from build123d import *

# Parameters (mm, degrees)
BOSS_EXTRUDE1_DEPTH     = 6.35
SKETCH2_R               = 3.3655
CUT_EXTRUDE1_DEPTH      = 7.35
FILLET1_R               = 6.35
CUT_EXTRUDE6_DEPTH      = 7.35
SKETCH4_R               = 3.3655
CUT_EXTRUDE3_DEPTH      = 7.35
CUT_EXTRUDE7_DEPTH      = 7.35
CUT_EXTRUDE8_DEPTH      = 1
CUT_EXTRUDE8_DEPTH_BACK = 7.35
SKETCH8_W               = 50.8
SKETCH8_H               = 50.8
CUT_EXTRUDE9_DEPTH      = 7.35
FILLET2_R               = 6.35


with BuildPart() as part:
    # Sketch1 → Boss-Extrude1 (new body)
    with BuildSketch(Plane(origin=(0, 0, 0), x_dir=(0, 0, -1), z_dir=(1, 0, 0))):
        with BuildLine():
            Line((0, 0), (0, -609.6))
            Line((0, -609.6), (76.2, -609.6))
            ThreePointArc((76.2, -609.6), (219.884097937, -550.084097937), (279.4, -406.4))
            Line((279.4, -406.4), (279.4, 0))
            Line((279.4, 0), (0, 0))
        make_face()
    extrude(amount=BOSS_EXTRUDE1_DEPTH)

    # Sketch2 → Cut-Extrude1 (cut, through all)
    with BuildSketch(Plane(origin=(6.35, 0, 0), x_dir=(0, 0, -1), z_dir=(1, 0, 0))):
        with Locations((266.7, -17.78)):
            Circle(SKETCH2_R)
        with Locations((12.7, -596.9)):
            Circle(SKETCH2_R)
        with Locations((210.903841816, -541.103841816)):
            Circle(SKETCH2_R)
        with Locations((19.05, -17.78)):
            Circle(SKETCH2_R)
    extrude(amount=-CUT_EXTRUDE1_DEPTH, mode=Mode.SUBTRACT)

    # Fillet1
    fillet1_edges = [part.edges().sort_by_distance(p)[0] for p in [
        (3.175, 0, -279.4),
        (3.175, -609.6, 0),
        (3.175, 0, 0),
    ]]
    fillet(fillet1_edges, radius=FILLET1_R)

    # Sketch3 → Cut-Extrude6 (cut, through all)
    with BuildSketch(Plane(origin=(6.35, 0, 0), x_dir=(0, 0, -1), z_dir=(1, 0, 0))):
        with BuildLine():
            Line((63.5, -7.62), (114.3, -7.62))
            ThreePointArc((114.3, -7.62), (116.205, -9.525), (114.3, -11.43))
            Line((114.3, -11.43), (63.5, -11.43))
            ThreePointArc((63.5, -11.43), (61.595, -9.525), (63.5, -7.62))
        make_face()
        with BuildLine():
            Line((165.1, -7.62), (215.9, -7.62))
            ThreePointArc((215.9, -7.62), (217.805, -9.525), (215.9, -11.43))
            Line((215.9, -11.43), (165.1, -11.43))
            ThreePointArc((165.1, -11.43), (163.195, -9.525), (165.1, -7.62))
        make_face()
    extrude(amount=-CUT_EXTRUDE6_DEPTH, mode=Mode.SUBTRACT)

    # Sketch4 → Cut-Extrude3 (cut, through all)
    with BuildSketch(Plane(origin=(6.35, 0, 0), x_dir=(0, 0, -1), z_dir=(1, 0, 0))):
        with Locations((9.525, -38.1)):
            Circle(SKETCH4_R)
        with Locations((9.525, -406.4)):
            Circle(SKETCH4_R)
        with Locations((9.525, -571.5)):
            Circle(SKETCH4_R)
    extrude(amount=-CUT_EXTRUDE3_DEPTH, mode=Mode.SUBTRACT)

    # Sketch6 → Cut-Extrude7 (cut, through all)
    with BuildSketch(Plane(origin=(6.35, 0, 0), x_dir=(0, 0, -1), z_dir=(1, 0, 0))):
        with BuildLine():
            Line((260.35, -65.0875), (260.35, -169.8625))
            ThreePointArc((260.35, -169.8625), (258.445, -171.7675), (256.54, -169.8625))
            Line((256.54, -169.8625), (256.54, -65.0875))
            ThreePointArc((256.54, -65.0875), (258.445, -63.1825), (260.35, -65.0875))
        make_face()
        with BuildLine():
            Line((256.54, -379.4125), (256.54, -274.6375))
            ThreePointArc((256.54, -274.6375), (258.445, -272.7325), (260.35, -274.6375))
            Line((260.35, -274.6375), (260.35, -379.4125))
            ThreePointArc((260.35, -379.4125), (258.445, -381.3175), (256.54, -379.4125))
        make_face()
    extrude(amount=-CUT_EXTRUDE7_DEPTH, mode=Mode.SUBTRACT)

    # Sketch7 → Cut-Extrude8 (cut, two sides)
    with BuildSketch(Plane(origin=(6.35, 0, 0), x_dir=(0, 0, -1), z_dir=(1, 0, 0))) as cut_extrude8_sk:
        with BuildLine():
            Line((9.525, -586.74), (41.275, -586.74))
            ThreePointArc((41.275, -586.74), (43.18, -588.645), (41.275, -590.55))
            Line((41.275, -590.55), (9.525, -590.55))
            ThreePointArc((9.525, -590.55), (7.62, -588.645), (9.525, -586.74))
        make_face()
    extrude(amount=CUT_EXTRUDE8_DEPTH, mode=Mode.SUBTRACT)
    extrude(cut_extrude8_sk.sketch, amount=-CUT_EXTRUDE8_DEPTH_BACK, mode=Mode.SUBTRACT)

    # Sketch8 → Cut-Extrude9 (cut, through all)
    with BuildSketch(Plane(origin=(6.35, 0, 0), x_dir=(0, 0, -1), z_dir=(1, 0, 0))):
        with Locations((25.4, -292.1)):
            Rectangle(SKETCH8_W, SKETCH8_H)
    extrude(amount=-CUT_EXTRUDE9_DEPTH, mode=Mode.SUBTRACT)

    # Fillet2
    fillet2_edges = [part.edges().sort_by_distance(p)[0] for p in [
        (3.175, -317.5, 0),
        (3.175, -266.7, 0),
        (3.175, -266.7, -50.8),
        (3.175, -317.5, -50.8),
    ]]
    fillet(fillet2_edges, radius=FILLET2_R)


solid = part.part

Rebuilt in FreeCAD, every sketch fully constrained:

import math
import FreeCAD as App
import Part
import Sketcher
from FreeCAD import Vector
Q = App.Units.Quantity


def edges_at(feature, points):
    """Names of the edges that pass closest to the given points."""
    edges = feature.Shape.Edges
    near = lambda p: min(range(len(edges)), key=lambda i: edges[i].distToShape(Part.Vertex(*p))[0])
    return sorted({f"Edge{near(p) + 1}" for p in points})


def add_polygon(sketch, points):
    """Adds a closed chain of lines whose ends are joined by coincident constraints."""
    first, n = sketch.GeometryCount, len(points)
    for a, b in zip(points, points[1:] + points[:1]):
        sketch.addGeometry(Part.LineSegment(App.Vector(*a, 0), App.Vector(*b, 0)), False)
    for i in range(n):
        sketch.addConstraint(Sketcher.Constraint("Coincident", first + i, 2, first + (i + 1) % n, 1))

doc = App.newDocument("Part")
params = doc.addObject("Spreadsheet::Sheet", "Params")
for row, (alias, value) in enumerate([
    ("sketch1_radius", "8 in"),
    ("sketch1_width", "24 in"),
    ("sketch1_height", "3 in"),
    ("pad1_length", "0.25 in"),
    ("sketch2_diameter", "0.265 in"),
    ("fillet_radius", "0.25 in"),
    ("sketch3_height", "2 in"),
    ("sketch3_radius", "0.075 in"),
    ("sketch4_diameter", "0.265 in"),
    ("sketch5_radius", "0.075 in"),
    ("sketch5_width", "4.125 in"),
    ("sketch6_radius", "0.075 in"),
    ("sketch6_height", "1.25 in"),
    ("sketch7_width", "2 in"),
    ("fillet2_radius", "0.25 in"),
], start=1):
    params.set(f"A{row}", alias)
    params.set(f"B{row}", "=" + value)
    params.setAlias(f"B{row}", alias)

body = doc.addObject("PartDesign::Body", "Body")

# Sketch on YZ plane
sketch1 = body.newObject("Sketcher::SketchObject", "Sketch")
sketch1.AttachmentSupport = (doc.getObject("YZ_Plane"), [""])
sketch1.MapMode = "FlatFace"
sketch1.addGeometry([
    Part.LineSegment(Vector(0, 0, 0), Vector(-610, 0, 0)),  # 0
    Part.LineSegment(Vector(-610, 0, 0), Vector(-610, -76, 0)),  # 1
    Part.ArcOfCircle(Part.Circle(Vector(-406, -76, 0), Vector(0, 0, 1), 203), math.radians(180), math.radians(270)),  # 2
    Part.LineSegment(Vector(-406, -279, 0), Vector(0, -279, 0)),  # 3
    Part.LineSegment(Vector(0, -279, 0), Vector(0, 0, 0)),  # 4
], False)
sketch1.addConstraint([
    Sketcher.Constraint("Coincident", 0, 2, 1, 1),
    Sketcher.Constraint("Tangent", 1, 2, 2, 1),
    Sketcher.Constraint("Tangent", 2, 2, 3, 1),
    Sketcher.Constraint("Coincident", 3, 2, 4, 1),
    Sketcher.Constraint("Coincident", 4, 2, 0, 1),
    Sketcher.Constraint("Horizontal", 0),
    Sketcher.Constraint("Vertical", 1),
    Sketcher.Constraint("Horizontal", 3),
    Sketcher.Constraint("Vertical", 4),
    Sketcher.Constraint("Coincident", 4, 2, -1, 1),
    Sketcher.Constraint("Radius", 2, Q("8 in")),
    Sketcher.Constraint("DistanceX", 0, 2, 0, 1, Q("24 in")),
    Sketcher.Constraint("DistanceY", 1, 2, 1, 1, Q("3 in")),
])
sketch1.setExpression("Constraints[10]", "Params.sketch1_radius")
sketch1.setExpression("Constraints[11]", "Params.sketch1_width")
sketch1.setExpression("Constraints[12]", "Params.sketch1_height")
pad1 = body.newObject("PartDesign::Pad", "Pad")
pad1.Profile = sketch1
pad1.setExpression("Length", "Params.pad1_length")

# Sketch on YZ plane
sketch2 = body.newObject("Sketcher::SketchObject", "Sketch001")
sketch2.AttachmentSupport = (doc.getObject("YZ_Plane"), [""])
sketch2.MapMode = "FlatFace"
sketch2.AttachmentOffset = App.Placement(Vector(0, 0, 0.25 * 25.4), App.Rotation())
sketch2.addGeometry([
    Part.Circle(Vector(-17.8, -266.7, 0), Vector(0, 0, 1), 3.4),
    Part.Circle(Vector(-596.9, -12.7, 0), Vector(0, 0, 1), 3.4),
    Part.Circle(Vector(-541.1, -210.9, 0), Vector(0, 0, 1), 3.4),
    Part.Circle(Vector(-17.8, -19.1, 0), Vector(0, 0, 1), 3.4),
], False)
sketch2.addConstraint([
    Sketcher.Constraint("Equal", 0, 1),
    Sketcher.Constraint("Equal", 1, 2),
    Sketcher.Constraint("Equal", 2, 3),
    Sketcher.Constraint("Vertical", 0, 3, 3, 3),
    Sketcher.Constraint("Diameter", 0, Q("0.265 in")),
    Sketcher.Constraint("DistanceY", 0, 3, 1, 3, Q("10 in")),
    Sketcher.Constraint("DistanceX", 0, 3, -1, 1, Q("0.7 in")),
    Sketcher.Constraint("DistanceY", 0, 3, -1, 1, Q("10.5 in")),
    Sketcher.Constraint("DistanceX", 1, 3, -1, 1, Q("23.5 in")),
    Sketcher.Constraint("DistanceY", 3, 3, -1, 1, Q("0.75 in")),
    Sketcher.Constraint("DistanceX", 2, 3, -1, 1, Q("541.103842 mm")),
    Sketcher.Constraint("DistanceY", 2, 3, -1, 1, Q("210.903842 mm")),
])
sketch2.setExpression("Constraints[4]", "Params.sketch2_diameter")
pocket1 = body.newObject("PartDesign::Pocket", "Pocket")
pocket1.Profile = sketch2
pocket1.Type = "ThroughAll"
doc.recompute()

fillet = body.newObject("PartDesign::Fillet", "Fillet")
fillet.Base = (pocket1, edges_at(pocket1, [(3.175, 0, -279.4), (3.175, -609.6, 0), (3.175, 0, 0)]))
fillet.setExpression("Radius", "Params.fillet_radius")

# Sketch on YZ plane
sketch3 = body.newObject("Sketcher::SketchObject", "Sketch002")
sketch3.AttachmentSupport = (doc.getObject("YZ_Plane"), [""])
sketch3.MapMode = "FlatFace"
sketch3.AttachmentOffset = App.Placement(Vector(0, 0, 0.25 * 25.4), App.Rotation())
sketch3.addGeometry([
    Part.LineSegment(Vector(-7.6, -114.3, 0), Vector(-7.6, -63.5, 0)),  # 0
    Part.ArcOfCircle(Part.Circle(Vector(-9.5, -63.5, 0), Vector(0, 0, 1), 1.9), math.radians(0), math.radians(180)),  # 1
    Part.LineSegment(Vector(-11.4, -63.5, 0), Vector(-11.4, -114.3, 0)),  # 2
    Part.ArcOfCircle(Part.Circle(Vector(-9.5, -114.3, 0), Vector(0, 0, 1), 1.9), math.radians(180), math.radians(360)),  # 3
    Part.LineSegment(Vector(-7.6, -215.9, 0), Vector(-7.6, -165.1, 0)),  # 4
    Part.ArcOfCircle(Part.Circle(Vector(-9.5, -165.1, 0), Vector(0, 0, 1), 1.9), math.radians(0), math.radians(180)),  # 5
    Part.LineSegment(Vector(-11.4, -165.1, 0), Vector(-11.4, -215.9, 0)),  # 6
    Part.ArcOfCircle(Part.Circle(Vector(-9.5, -215.9, 0), Vector(0, 0, 1), 1.9), math.radians(180), math.radians(360)),  # 7
], False)
sketch3.addConstraint([
    Sketcher.Constraint("Tangent", 0, 2, 1, 1),
    Sketcher.Constraint("Tangent", 1, 2, 2, 1),
    Sketcher.Constraint("Tangent", 2, 2, 3, 1),
    Sketcher.Constraint("Tangent", 3, 2, 0, 1),
    Sketcher.Constraint("Tangent", 4, 2, 5, 1),
    Sketcher.Constraint("Tangent", 5, 2, 6, 1),
    Sketcher.Constraint("Tangent", 6, 2, 7, 1),
    Sketcher.Constraint("Tangent", 7, 2, 4, 1),
    Sketcher.Constraint("Vertical", 0),
    Sketcher.Constraint("Vertical", 2),
    Sketcher.Constraint("Vertical", 4),
    Sketcher.Constraint("Vertical", 6),
    Sketcher.Constraint("Equal", 3, 5),
    Sketcher.Constraint("Vertical", 3, 3, 5, 3),
    Sketcher.Constraint("Equal", 2, 4),
    Sketcher.Constraint("DistanceY", 0, 1, 0, 2, Q("2 in")),
    Sketcher.Constraint("Radius", 1, Q("0.075 in")),
    Sketcher.Constraint("DistanceY", 5, 3, 3, 3, Q("2 in")),
    Sketcher.Constraint("DistanceY", 1, 3, -1, 1, Q("2.5 in")),
    Sketcher.Constraint("DistanceX", 0, 2, -1, 1, Q("0.3 in")),
])
sketch3.setExpression("Constraints[15]", "Params.sketch3_height")
sketch3.setExpression("Constraints[16]", "Params.sketch3_radius")
pocket2 = body.newObject("PartDesign::Pocket", "Pocket001")
pocket2.Profile = sketch3
pocket2.Type = "ThroughAll"

# Sketch on YZ plane
sketch4 = body.newObject("Sketcher::SketchObject", "Sketch003")
sketch4.AttachmentSupport = (doc.getObject("YZ_Plane"), [""])
sketch4.MapMode = "FlatFace"
sketch4.AttachmentOffset = App.Placement(Vector(0, 0, 0.25 * 25.4), App.Rotation())
sketch4.addGeometry([
    Part.Circle(Vector(-38.1, -9.5, 0), Vector(0, 0, 1), 3.4),
    Part.Circle(Vector(-406.4, -9.5, 0), Vector(0, 0, 1), 3.4),
    Part.Circle(Vector(-571.5, -9.5, 0), Vector(0, 0, 1), 3.4),
], False)
sketch4.addConstraint([
    Sketcher.Constraint("Equal", 0, 1),
    Sketcher.Constraint("Equal", 1, 2),
    Sketcher.Constraint("Horizontal", 0, 3, 1, 3),
    Sketcher.Constraint("Horizontal", 1, 3, 2, 3),
    Sketcher.Constraint("Diameter", 0, Q("0.265 in")),
    Sketcher.Constraint("DistanceX", 1, 3, -1, 1, Q("16 in")),
    Sketcher.Constraint("DistanceX", 2, 3, 0, 3, Q("21 in")),
    Sketcher.Constraint("DistanceX", 0, 3, -1, 1, Q("1.5 in")),
    Sketcher.Constraint("DistanceY", 0, 3, -1, 1, Q("0.375 in")),
])
sketch4.setExpression("Constraints[4]", "Params.sketch4_diameter")
pocket3 = body.newObject("PartDesign::Pocket", "Pocket002")
pocket3.Profile = sketch4
pocket3.Type = "ThroughAll"

# Sketch on YZ plane
sketch5 = body.newObject("Sketcher::SketchObject", "Sketch004")
sketch5.AttachmentSupport = (doc.getObject("YZ_Plane"), [""])
sketch5.MapMode = "FlatFace"
sketch5.AttachmentOffset = App.Placement(Vector(0, 0, 0.25 * 25.4), App.Rotation())
sketch5.addGeometry([
    Part.LineSegment(Vector(-169.9, -260.4, 0), Vector(-65.1, -260.4, 0)),  # 0
    Part.ArcOfCircle(Part.Circle(Vector(-65.1, -258.4, 0), Vector(0, 0, 1), 1.9), math.radians(-90), math.radians(90)),  # 1
    Part.LineSegment(Vector(-65.1, -256.5, 0), Vector(-169.9, -256.5, 0)),  # 2
    Part.ArcOfCircle(Part.Circle(Vector(-169.9, -258.4, 0), Vector(0, 0, 1), 1.9), math.radians(90), math.radians(270)),  # 3
    Part.LineSegment(Vector(-274.6, -256.5, 0), Vector(-379.4, -256.5, 0)),  # 4
    Part.ArcOfCircle(Part.Circle(Vector(-379.4, -258.4, 0), Vector(0, 0, 1), 1.9), math.radians(90), math.radians(270)),  # 5
    Part.LineSegment(Vector(-379.4, -260.4, 0), Vector(-274.6, -260.4, 0)),  # 6
    Part.ArcOfCircle(Part.Circle(Vector(-274.6, -258.4, 0), Vector(0, 0, 1), 1.9), math.radians(-90), math.radians(90)),  # 7
], False)
sketch5.addConstraint([
    Sketcher.Constraint("Tangent", 0, 2, 1, 1),
    Sketcher.Constraint("Tangent", 1, 2, 2, 1),
    Sketcher.Constraint("Tangent", 2, 2, 3, 1),
    Sketcher.Constraint("Tangent", 3, 2, 0, 1),
    Sketcher.Constraint("Tangent", 4, 2, 5, 1),
    Sketcher.Constraint("Tangent", 5, 2, 6, 1),
    Sketcher.Constraint("Tangent", 6, 2, 7, 1),
    Sketcher.Constraint("Tangent", 7, 2, 4, 1),
    Sketcher.Constraint("Horizontal", 0),
    Sketcher.Constraint("Horizontal", 2),
    Sketcher.Constraint("Horizontal", 4),
    Sketcher.Constraint("Horizontal", 6),
    Sketcher.Constraint("Equal", 3, 5),
    Sketcher.Constraint("Horizontal", 3, 3, 5, 3),
    Sketcher.Constraint("Equal", 2, 4),
    Sketcher.Constraint("Radius", 1, Q("0.075 in")),
    Sketcher.Constraint("DistanceY", 1, 2, -1, 1, Q("10.1 in")),
    Sketcher.Constraint("DistanceX", 0, 1, 0, 2, Q("4.125 in")),
    Sketcher.Constraint("DistanceX", 5, 3, 3, 3, Q("8.25 in")),
    Sketcher.Constraint("DistanceX", 1, 3, -1, 1, Q("2.5625 in")),
])
sketch5.setExpression("Constraints[15]", "Params.sketch5_radius")
sketch5.setExpression("Constraints[17]", "Params.sketch5_width")
pocket4 = body.newObject("PartDesign::Pocket", "Pocket003")
pocket4.Profile = sketch5
pocket4.Type = "ThroughAll"

# Sketch on YZ plane
sketch6 = body.newObject("Sketcher::SketchObject", "Sketch005")
sketch6.AttachmentSupport = (doc.getObject("YZ_Plane"), [""])
sketch6.MapMode = "FlatFace"
sketch6.AttachmentOffset = App.Placement(Vector(0, 0, 0.25 * 25.4), App.Rotation())
sketch6.addGeometry([
    Part.LineSegment(Vector(-586.7, -41.3, 0), Vector(-586.7, -9.5, 0)),
    Part.ArcOfCircle(Part.Circle(Vector(-588.6, -9.5, 0), Vector(0, 0, 1), 1.9), math.radians(0), math.radians(180)),
    Part.LineSegment(Vector(-590.5, -9.5, 0), Vector(-590.5, -41.3, 0)),
    Part.ArcOfCircle(Part.Circle(Vector(-588.6, -41.3, 0), Vector(0, 0, 1), 1.9), math.radians(180), math.radians(360)),
], False)
sketch6.addConstraint([
    Sketcher.Constraint("Tangent", 0, 2, 1, 1),
    Sketcher.Constraint("Tangent", 1, 2, 2, 1),
    Sketcher.Constraint("Tangent", 2, 2, 3, 1),
    Sketcher.Constraint("Tangent", 3, 2, 0, 1),
    Sketcher.Constraint("Vertical", 0),
    Sketcher.Constraint("Vertical", 2),
    Sketcher.Constraint("Radius", 1, Q("0.075 in")),
    Sketcher.Constraint("DistanceY", 0, 1, 0, 2, Q("1.25 in")),
    Sketcher.Constraint("DistanceX", 0, 2, -1, 1, Q("23.1 in")),
    Sketcher.Constraint("DistanceY", 1, 3, -1, 1, Q("0.375 in")),
])
sketch6.setExpression("Constraints[6]", "Params.sketch6_radius")
sketch6.setExpression("Constraints[7]", "Params.sketch6_height")
pocket5 = body.newObject("PartDesign::Pocket", "Pocket004")
pocket5.Profile = sketch6
pocket5.Type = "ThroughAll"
pocket5.Midplane = True

# Sketch on YZ plane
sketch7 = body.newObject("Sketcher::SketchObject", "Sketch006")
sketch7.AttachmentSupport = (doc.getObject("YZ_Plane"), [""])
sketch7.MapMode = "FlatFace"
sketch7.AttachmentOffset = App.Placement(Vector(0, 0, 0.25 * 25.4), App.Rotation())
add_polygon(sketch7, [(-267, 0), (-318, 0), (-318, -51), (-267, -51)])  # lines 0-3
sketch7.addConstraint([
    Sketcher.Constraint("Horizontal", 0),
    Sketcher.Constraint("Vertical", 1),
    Sketcher.Constraint("Horizontal", 2),
    Sketcher.Constraint("Vertical", 3),
    Sketcher.Constraint("PointOnObject", 0, 2, -1),
    Sketcher.Constraint("Equal", 2, 1),
    Sketcher.Constraint("DistanceX", 0, 2, 0, 1, Q("2 in")),
    Sketcher.Constraint("DistanceX", 0, 2, -1, 1, Q("12.5 in")),
])
sketch7.setExpression("Constraints[10]", "Params.sketch7_width")
pocket6 = body.newObject("PartDesign::Pocket", "Pocket005")
pocket6.Profile = sketch7
pocket6.Type = "ThroughAll"
doc.recompute()

fillet2 = body.newObject("PartDesign::Fillet", "Fillet001")
fillet2.Base = (pocket6, edges_at(pocket6, [
    (3.175, -317.5, 0),
    (3.175, -266.7, 0),
    (3.175, -266.7, -50.8),
    (3.175, -317.5, -50.8),
]))
fillet2.setExpression("Radius", "Params.fillet2_radius")

doc.recompute()
